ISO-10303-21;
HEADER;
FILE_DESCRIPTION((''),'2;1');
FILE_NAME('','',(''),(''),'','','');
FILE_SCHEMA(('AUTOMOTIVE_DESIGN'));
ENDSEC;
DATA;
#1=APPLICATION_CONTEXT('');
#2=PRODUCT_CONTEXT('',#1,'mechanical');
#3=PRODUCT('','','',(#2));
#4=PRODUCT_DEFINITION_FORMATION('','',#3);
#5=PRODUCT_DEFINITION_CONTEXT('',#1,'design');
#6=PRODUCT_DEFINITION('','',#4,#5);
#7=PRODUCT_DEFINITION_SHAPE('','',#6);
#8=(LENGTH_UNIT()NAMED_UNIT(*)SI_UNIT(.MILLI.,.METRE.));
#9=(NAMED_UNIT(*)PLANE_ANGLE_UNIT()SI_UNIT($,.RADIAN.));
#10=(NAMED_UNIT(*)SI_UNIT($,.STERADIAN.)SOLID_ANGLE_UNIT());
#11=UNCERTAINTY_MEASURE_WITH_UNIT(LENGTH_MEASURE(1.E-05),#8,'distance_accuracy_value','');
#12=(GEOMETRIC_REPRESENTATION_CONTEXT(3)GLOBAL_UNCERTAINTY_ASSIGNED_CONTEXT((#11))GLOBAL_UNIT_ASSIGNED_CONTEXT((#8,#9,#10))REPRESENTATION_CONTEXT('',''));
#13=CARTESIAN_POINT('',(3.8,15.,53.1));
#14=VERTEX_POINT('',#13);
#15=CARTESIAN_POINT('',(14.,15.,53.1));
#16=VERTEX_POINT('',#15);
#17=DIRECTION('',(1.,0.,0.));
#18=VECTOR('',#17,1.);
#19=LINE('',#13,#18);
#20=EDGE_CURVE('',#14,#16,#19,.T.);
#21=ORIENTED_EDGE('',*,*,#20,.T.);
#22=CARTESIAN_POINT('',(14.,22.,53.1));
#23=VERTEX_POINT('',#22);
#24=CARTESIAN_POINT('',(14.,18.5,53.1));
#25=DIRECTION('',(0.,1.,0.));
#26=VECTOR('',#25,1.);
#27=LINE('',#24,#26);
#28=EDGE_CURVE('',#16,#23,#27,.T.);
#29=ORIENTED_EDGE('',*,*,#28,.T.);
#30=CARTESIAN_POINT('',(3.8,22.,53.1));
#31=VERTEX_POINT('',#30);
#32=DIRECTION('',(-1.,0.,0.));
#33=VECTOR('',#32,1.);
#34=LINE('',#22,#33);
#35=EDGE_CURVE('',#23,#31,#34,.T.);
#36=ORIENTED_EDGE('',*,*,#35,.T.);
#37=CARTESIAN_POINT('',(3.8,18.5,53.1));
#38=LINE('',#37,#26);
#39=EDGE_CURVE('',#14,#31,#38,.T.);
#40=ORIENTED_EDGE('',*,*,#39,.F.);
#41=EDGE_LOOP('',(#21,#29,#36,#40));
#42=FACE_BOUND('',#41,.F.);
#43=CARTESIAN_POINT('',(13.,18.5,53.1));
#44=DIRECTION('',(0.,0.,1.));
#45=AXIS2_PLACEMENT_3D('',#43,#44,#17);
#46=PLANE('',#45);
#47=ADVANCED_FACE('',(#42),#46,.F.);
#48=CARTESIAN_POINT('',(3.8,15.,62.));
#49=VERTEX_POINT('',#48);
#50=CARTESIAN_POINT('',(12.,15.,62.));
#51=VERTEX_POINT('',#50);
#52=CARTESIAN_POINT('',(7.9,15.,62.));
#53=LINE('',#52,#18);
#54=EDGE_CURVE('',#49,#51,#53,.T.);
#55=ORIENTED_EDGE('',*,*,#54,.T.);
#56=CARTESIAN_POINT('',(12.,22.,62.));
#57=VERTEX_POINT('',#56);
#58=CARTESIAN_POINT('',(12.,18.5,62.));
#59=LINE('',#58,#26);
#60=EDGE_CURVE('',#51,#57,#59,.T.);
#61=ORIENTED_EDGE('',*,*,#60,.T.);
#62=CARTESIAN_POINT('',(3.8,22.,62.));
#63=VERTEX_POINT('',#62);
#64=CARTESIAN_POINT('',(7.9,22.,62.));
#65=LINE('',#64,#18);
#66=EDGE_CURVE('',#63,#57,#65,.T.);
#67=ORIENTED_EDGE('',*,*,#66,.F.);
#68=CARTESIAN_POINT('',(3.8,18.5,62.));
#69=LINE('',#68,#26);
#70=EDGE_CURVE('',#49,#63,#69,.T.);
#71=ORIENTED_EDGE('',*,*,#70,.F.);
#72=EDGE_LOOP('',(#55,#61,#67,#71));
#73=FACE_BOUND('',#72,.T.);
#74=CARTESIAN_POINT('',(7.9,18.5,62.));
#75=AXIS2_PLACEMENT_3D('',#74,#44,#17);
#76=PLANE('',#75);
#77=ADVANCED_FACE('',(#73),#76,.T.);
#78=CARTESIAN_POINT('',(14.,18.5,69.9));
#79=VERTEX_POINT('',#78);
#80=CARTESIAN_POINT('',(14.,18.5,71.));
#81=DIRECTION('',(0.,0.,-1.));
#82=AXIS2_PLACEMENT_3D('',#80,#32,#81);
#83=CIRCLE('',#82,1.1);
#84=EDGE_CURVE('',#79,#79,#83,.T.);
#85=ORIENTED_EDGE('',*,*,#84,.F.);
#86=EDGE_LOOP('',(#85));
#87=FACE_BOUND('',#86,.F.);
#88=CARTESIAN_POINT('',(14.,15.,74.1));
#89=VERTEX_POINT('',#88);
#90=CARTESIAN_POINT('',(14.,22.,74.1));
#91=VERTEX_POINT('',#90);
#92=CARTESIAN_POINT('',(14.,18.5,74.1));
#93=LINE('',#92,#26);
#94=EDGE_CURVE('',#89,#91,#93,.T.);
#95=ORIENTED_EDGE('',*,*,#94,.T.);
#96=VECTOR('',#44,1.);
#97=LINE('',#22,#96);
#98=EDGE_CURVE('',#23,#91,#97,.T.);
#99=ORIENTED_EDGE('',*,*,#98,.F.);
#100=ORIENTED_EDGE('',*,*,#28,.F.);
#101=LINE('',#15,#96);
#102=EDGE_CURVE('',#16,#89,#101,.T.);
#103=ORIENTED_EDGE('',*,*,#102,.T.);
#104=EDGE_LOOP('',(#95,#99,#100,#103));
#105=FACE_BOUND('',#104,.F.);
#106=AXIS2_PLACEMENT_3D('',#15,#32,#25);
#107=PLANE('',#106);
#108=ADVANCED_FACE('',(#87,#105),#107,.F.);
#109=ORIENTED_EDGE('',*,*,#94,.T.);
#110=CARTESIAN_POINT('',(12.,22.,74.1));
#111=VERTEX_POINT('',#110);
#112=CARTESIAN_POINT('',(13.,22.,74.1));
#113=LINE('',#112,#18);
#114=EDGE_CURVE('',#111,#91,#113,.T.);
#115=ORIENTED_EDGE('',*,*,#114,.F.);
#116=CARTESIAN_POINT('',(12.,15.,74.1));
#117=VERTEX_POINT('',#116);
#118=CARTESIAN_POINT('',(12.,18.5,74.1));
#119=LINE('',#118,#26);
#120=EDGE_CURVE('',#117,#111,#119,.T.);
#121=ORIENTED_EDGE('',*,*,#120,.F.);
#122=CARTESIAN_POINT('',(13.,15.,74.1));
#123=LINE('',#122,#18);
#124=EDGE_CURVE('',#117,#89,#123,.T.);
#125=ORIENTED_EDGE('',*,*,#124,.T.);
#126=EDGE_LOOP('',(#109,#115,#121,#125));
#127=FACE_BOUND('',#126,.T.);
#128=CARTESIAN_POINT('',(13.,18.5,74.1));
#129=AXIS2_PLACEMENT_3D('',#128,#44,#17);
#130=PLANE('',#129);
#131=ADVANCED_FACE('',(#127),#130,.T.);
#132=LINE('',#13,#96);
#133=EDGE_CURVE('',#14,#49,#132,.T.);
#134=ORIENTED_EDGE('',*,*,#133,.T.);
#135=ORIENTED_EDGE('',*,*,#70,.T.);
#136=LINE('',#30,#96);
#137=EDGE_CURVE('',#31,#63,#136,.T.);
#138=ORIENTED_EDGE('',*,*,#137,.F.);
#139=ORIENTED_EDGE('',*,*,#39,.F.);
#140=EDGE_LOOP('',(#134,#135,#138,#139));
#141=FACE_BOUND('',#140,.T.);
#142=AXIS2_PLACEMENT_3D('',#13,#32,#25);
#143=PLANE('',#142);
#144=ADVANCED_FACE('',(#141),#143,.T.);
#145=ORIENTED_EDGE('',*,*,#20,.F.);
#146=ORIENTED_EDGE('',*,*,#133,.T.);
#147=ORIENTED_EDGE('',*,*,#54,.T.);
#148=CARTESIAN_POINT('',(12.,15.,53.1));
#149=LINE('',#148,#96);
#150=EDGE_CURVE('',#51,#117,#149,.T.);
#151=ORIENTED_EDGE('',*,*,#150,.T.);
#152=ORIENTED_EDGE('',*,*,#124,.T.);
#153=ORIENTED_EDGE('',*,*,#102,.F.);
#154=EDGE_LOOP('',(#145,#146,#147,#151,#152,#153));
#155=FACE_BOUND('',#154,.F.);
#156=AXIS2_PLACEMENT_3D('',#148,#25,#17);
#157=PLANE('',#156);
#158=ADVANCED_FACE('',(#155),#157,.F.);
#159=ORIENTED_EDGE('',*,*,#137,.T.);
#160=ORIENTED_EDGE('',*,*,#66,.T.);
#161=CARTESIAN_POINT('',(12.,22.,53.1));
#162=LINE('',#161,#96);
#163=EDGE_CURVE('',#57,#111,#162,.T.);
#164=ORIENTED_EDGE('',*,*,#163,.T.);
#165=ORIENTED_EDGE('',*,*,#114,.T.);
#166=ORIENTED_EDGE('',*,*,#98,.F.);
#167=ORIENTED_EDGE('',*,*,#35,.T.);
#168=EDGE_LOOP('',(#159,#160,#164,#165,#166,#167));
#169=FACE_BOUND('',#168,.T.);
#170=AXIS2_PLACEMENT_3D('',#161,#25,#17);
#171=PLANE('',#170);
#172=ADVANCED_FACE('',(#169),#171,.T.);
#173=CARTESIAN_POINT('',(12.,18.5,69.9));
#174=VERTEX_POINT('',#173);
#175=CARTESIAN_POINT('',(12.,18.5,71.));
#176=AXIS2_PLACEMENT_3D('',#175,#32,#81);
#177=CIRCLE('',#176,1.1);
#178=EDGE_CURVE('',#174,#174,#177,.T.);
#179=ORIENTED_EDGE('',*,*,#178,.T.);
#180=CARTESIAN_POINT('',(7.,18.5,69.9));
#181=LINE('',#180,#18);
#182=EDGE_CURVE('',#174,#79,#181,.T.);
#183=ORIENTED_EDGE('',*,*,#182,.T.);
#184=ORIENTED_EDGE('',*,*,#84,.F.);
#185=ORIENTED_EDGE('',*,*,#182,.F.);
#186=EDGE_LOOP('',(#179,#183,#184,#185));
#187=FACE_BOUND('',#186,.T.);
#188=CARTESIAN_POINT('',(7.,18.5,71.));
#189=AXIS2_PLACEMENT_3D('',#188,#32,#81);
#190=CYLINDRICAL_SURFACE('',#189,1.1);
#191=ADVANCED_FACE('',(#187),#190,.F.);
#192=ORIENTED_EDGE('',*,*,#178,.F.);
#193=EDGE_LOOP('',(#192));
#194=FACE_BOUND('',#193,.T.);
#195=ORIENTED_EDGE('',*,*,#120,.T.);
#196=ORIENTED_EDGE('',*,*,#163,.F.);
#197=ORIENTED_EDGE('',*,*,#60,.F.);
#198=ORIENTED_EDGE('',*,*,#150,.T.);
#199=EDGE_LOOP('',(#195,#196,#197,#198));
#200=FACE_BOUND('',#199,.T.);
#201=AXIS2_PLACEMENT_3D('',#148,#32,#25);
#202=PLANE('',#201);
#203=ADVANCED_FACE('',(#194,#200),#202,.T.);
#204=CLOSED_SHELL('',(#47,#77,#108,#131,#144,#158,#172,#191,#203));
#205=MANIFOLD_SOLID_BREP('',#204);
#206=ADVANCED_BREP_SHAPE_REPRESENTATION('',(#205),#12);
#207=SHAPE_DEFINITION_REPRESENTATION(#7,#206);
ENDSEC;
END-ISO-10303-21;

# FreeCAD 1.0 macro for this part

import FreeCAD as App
import Part
import Sketcher

V = App.Vector

doc = App.newDocument("Part")
params = doc.addObject("Spreadsheet::Sheet", "Params")
for row, (alias, value) in enumerate([
    ("sketch1_diameter", "2.2 mm"),
    ("pad1_length", "21 mm"),
    ("sketch2_width", "2 mm"),
    ("sketch2_height", "7 mm"),
    ("pad2_length", "21 mm"),
    ("sketch3_height", "7 mm"),
    ("sketch3_width", "8.2 mm"),
    ("pad3_length", "8.9 mm"),
], start=1):
    params.set(f"A{row}", alias)
    params.set(f"B{row}", "=" + value)
    params.setAlias(f"B{row}", alias)

body = doc.addObject("PartDesign::Body", "Body")

# Sketch on YZ plane
sketch1 = body.newObject("Sketcher::SketchObject", "Sketch")
sketch1.AttachmentSupport = (doc.getObject("YZ_Plane"), [""])
sketch1.MapMode = "FlatFace"
sketch1.AttachmentOffset = App.Placement(V(0, 0, 7), App.Rotation())
sketch1.addGeometry(Part.Circle(V(18.5, 71, 0), V(0, 0, 1), 1.1), False)
sketch1.addConstraint([
    Sketcher.Constraint("Diameter", 0, 2.2),
    Sketcher.Constraint("DistanceY", -1, 1, 0, 3, 71.0),
    Sketcher.Constraint("DistanceX", -1, 1, 0, 3, 18.5),
])
sketch1.setExpression("Constraints[0]", "Params.sketch1_diameter")
pad1 = body.newObject("PartDesign::Pad", "Pad")
pad1.Profile = sketch1
pad1.setExpression("Length", "Params.pad1_length")
body2 = doc.addObject("PartDesign::Body", "Body001")

# Sketch on XY plane
sketch2 = body2.newObject("Sketcher::SketchObject", "Sketch001")
sketch2.AttachmentSupport = (doc.getObject("XY_Plane001"), [""])
sketch2.MapMode = "FlatFace"
sketch2.AttachmentOffset = App.Placement(V(0, 0, 53.1), App.Rotation())
sketch2.addGeometry([
    Part.LineSegment(V(12, 22, 0), V(12, 15, 0)),
    Part.LineSegment(V(12, 15, 0), V(14, 15, 0)),
    Part.LineSegment(V(14, 15, 0), V(14, 22, 0)),
    Part.LineSegment(V(14, 22, 0), V(12, 22, 0)),
], False)
sketch2.addConstraint([
    Sketcher.Constraint("Coincident", 0, 2, 1, 1),
    Sketcher.Constraint("Coincident", 1, 2, 2, 1),
    Sketcher.Constraint("Coincident", 2, 2, 3, 1),
    Sketcher.Constraint("Coincident", 3, 2, 0, 1),
    Sketcher.Constraint("Vertical", 0),
    Sketcher.Constraint("Horizontal", 1),
    Sketcher.Constraint("Vertical", 2),
    Sketcher.Constraint("Horizontal", 3),
    Sketcher.Constraint("DistanceX", 1, 1, 1, 2, 2.0),
    Sketcher.Constraint("DistanceY", 0, 2, 0, 1, 7.0),
    Sketcher.Constraint("DistanceX", -1, 1, 0, 2, 12.0),
    Sketcher.Constraint("DistanceY", -1, 1, 0, 2, 15.0),
])
sketch2.setExpression("Constraints[8]", "Params.sketch2_width")
sketch2.setExpression("Constraints[9]", "Params.sketch2_height")
pad2 = body2.newObject("PartDesign::Pad", "Pad001")
pad2.Profile = sketch2
pad2.setExpression("Length", "Params.pad2_length")
doc.recompute()

boolean = body2.newObject("PartDesign::Boolean", "Boolean")
boolean.Type = "Cut"
boolean.addObjects([body])
body3 = doc.addObject("PartDesign::Body", "Body002")

# Sketch on XY plane
sketch3 = body3.newObject("Sketcher::SketchObject", "Sketch002")
sketch3.AttachmentSupport = (doc.getObject("XY_Plane002"), [""])
sketch3.MapMode = "FlatFace"
sketch3.AttachmentOffset = App.Placement(V(0, 0, 53.1), App.Rotation())
sketch3.addGeometry([
    Part.LineSegment(V(3.8, 22, 0), V(3.8, 15, 0)),
    Part.LineSegment(V(3.8, 15, 0), V(12, 15, 0)),
    Part.LineSegment(V(12, 15, 0), V(12, 22, 0)),
    Part.LineSegment(V(12, 22, 0), V(3.8, 22, 0)),
], False)
sketch3.addConstraint([
    Sketcher.Constraint("Coincident", 0, 2, 1, 1),
    Sketcher.Constraint("Coincident", 1, 2, 2, 1),
    Sketcher.Constraint("Coincident", 2, 2, 3, 1),
    Sketcher.Constraint("Coincident", 3, 2, 0, 1),
    Sketcher.Constraint("Vertical", 0),
    Sketcher.Constraint("Horizontal", 1),
    Sketcher.Constraint("Vertical", 2),
    Sketcher.Constraint("Horizontal", 3),
    Sketcher.Constraint("DistanceY", 0, 2, 0, 1, 7.0),
    Sketcher.Constraint("DistanceX", 1, 1, 1, 2, 8.2),
    Sketcher.Constraint("DistanceY", -1, 1, 0, 2, 15.0),
    Sketcher.Constraint("DistanceX", -1, 1, 1, 2, 12.0),
])
sketch3.setExpression("Constraints[8]", "Params.sketch3_height")
sketch3.setExpression("Constraints[9]", "Params.sketch3_width")
pad3 = body3.newObject("PartDesign::Pad", "Pad002")
pad3.Profile = sketch3
pad3.setExpression("Length", "Params.pad3_length")
doc.recompute()

boolean2 = body3.newObject("PartDesign::Boolean", "Boolean001")
boolean2.Type = "Fuse"
boolean2.addObjects([body2])

doc.recompute()
